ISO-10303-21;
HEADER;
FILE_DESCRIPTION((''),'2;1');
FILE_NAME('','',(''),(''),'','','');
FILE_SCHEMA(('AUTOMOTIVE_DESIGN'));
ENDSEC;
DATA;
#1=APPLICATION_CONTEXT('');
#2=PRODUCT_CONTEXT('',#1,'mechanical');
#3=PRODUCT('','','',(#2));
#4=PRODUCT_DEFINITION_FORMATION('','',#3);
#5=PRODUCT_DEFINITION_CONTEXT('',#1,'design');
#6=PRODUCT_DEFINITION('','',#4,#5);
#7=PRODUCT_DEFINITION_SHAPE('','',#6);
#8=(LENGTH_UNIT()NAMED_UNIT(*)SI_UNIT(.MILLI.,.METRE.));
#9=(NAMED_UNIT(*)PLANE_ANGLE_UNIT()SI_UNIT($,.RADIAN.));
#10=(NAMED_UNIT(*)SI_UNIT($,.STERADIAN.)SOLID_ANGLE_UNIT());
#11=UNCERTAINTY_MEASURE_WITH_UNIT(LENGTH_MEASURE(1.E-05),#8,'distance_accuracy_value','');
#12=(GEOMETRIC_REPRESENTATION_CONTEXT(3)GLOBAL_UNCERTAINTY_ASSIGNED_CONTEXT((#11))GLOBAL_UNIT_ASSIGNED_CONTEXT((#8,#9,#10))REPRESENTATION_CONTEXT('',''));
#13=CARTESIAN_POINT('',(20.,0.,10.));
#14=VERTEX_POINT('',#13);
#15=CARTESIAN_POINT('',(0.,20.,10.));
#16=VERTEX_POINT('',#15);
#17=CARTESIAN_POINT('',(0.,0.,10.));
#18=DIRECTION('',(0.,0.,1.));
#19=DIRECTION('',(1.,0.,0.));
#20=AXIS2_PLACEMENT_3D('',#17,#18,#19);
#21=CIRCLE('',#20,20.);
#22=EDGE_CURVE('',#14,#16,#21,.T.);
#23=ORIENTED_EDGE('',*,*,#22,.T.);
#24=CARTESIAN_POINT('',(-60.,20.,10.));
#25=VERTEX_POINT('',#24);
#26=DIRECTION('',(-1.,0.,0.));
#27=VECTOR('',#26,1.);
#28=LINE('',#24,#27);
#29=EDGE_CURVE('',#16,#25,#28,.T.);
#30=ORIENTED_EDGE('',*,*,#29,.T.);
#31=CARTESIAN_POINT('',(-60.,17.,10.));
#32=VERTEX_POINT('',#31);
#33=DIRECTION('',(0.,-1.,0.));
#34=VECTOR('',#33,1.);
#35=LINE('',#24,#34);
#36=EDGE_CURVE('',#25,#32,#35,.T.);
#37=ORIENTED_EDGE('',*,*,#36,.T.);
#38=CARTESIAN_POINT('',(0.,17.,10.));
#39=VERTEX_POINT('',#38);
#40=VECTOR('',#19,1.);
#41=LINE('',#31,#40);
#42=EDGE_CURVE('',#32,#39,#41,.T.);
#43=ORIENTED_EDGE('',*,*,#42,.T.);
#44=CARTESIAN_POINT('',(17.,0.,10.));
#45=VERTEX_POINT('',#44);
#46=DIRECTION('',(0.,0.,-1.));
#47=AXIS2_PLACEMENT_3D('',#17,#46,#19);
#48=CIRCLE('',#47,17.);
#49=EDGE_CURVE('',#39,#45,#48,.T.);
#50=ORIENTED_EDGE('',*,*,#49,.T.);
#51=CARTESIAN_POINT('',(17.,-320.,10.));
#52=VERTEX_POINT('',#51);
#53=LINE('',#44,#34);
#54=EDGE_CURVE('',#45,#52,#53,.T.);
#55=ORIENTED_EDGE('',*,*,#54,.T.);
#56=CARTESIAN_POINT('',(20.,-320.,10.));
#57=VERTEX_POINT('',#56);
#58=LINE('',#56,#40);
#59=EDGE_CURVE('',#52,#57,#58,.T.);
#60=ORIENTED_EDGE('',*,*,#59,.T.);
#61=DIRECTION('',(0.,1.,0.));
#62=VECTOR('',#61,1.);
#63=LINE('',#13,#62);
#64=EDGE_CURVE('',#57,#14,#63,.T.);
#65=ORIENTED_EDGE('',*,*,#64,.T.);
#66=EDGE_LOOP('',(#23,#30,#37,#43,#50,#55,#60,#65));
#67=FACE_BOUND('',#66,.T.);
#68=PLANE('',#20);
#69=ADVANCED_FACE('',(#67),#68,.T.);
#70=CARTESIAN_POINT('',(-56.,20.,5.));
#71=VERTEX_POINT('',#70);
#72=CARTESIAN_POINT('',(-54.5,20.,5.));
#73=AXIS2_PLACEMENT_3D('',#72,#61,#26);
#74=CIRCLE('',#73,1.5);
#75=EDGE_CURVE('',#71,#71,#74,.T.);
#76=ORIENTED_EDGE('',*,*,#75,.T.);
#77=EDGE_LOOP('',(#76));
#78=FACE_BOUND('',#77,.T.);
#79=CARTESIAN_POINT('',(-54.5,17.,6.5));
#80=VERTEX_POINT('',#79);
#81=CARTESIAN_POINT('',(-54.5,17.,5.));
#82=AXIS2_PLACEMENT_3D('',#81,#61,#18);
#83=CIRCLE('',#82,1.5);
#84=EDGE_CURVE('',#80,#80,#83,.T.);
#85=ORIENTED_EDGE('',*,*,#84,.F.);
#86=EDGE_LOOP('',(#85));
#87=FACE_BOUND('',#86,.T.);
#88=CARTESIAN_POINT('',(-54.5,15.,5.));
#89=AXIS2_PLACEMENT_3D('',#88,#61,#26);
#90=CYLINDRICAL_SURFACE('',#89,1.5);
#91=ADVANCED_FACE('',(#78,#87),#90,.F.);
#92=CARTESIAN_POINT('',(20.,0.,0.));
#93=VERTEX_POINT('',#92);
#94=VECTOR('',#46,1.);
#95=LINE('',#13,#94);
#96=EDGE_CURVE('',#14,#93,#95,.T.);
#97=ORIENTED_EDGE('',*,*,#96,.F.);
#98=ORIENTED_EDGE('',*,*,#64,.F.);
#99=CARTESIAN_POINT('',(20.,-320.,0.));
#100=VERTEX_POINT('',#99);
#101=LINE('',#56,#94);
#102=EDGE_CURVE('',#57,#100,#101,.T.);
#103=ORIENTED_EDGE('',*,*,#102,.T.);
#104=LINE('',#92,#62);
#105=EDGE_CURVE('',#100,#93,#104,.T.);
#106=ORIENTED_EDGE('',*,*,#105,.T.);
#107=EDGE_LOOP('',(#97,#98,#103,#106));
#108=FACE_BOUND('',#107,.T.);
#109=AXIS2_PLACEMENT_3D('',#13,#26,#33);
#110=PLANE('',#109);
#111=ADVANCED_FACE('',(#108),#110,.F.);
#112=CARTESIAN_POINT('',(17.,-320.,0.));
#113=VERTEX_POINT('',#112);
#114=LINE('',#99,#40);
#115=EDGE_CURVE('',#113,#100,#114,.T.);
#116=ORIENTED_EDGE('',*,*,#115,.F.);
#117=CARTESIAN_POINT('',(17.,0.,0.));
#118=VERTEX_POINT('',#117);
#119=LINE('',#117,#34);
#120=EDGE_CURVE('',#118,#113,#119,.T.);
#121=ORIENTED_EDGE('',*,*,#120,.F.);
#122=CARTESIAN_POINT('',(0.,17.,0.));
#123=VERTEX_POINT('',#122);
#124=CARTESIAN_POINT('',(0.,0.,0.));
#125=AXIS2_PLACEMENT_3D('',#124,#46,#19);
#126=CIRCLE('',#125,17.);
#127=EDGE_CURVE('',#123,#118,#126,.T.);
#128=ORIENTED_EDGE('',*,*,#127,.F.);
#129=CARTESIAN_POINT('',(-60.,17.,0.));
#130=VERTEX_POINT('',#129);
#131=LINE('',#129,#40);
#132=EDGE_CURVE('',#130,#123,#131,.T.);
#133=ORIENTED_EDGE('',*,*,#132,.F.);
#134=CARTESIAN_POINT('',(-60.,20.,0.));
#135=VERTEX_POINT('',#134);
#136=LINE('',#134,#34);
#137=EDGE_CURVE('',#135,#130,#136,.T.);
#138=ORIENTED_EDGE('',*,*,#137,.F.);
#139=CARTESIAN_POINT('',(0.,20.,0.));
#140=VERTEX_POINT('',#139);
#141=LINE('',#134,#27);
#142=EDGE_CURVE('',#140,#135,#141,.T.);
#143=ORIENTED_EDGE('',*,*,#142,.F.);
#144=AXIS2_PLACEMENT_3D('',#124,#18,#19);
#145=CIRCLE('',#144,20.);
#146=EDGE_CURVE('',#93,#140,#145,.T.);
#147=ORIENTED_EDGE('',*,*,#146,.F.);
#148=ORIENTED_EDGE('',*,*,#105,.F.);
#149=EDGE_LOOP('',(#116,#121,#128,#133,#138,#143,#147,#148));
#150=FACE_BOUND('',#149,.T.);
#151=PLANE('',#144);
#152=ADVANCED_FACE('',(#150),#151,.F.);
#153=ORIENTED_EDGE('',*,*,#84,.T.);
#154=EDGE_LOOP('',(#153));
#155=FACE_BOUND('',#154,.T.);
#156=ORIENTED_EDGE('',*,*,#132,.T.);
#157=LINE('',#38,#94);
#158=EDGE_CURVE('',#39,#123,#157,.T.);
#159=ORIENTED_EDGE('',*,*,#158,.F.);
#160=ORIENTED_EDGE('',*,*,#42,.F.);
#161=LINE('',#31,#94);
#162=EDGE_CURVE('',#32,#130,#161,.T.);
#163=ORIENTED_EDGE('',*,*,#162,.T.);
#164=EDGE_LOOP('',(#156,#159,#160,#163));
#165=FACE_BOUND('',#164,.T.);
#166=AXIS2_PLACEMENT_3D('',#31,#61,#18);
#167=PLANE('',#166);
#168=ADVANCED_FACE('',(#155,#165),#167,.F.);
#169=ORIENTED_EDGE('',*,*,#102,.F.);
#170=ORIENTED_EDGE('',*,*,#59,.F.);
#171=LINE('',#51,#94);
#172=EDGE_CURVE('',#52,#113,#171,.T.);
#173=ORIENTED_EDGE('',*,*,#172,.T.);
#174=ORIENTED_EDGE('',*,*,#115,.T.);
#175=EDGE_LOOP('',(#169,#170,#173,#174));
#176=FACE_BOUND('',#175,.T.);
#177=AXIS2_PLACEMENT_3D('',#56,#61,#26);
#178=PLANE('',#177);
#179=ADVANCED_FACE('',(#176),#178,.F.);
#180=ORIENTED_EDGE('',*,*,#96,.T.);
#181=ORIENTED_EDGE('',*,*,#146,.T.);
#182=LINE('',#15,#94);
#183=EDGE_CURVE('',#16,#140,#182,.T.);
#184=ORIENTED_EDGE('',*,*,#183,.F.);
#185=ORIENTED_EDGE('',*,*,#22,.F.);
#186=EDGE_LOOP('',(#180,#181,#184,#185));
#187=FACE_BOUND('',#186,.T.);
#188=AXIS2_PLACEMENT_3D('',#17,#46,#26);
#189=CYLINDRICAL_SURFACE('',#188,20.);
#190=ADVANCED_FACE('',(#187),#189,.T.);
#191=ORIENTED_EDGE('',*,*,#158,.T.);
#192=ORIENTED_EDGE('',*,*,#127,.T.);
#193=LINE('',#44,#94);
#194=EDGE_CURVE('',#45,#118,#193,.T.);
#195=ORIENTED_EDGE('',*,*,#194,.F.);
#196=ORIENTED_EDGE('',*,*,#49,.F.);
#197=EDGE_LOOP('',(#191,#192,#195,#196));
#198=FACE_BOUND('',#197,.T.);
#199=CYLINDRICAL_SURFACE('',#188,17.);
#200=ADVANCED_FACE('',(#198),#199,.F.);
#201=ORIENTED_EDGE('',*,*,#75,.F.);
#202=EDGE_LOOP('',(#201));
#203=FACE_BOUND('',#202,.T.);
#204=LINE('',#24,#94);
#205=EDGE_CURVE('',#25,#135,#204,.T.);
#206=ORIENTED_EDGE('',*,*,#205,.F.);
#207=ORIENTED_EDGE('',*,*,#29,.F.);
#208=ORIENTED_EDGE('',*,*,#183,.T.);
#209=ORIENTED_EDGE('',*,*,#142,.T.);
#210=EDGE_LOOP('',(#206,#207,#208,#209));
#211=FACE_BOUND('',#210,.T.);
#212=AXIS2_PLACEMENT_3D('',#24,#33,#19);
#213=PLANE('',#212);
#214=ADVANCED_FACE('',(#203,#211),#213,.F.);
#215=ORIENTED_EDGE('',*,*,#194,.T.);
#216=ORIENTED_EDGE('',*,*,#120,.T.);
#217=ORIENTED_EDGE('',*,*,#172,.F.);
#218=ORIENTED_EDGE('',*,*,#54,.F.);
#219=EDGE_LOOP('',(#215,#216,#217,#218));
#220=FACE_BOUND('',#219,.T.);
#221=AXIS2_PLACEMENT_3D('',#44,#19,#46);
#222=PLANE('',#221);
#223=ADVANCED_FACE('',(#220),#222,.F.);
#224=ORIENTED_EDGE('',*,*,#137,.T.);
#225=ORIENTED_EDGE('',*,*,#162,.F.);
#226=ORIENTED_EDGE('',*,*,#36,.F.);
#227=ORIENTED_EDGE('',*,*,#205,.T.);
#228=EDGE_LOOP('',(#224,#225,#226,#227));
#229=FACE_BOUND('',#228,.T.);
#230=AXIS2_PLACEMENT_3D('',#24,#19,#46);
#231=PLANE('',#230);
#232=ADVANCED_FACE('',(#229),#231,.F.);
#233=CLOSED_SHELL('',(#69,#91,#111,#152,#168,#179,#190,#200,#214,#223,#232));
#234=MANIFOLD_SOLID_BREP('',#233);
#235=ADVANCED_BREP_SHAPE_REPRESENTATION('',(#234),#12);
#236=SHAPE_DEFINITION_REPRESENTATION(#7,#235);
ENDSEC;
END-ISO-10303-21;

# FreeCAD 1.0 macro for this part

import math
import FreeCAD as App
import Part
import Sketcher

doc = App.newDocument("Part")
body = doc.addObject("PartDesign::Body", "Body")

# Sketch on XY plane
sketch1 = body.newObject("Sketcher::SketchObject", "Sketch")
sketch1.AttachmentSupport = (doc.getObject("XY_Plane"), [""])
sketch1.MapMode = "FlatFace"
sketch1.addGeometry([
    Part.LineSegment(App.Vector(20, -320, 0), App.Vector(20, 0, 0)),  # 0
    Part.ArcOfCircle(Part.Circle(App.Vector(0, 0, 0), App.Vector(0, 0, 1), 20), math.radians(0), math.radians(90)),  # 1
    Part.LineSegment(App.Vector(0, 20, 0), App.Vector(-60, 20, 0)),  # 2
    Part.LineSegment(App.Vector(-60, 20, 0), App.Vector(-60, 17, 0)),  # 3
    Part.LineSegment(App.Vector(-60, 17, 0), App.Vector(0, 17, 0)),  # 4
    Part.ArcOfCircle(Part.Circle(App.Vector(0, 0, 0), App.Vector(0, 0, 1), 17), math.radians(0), math.radians(90)),  # 5
    Part.LineSegment(App.Vector(17, 0, 0), App.Vector(17, -320, 0)),  # 6
    Part.LineSegment(App.Vector(17, -320, 0), App.Vector(20, -320, 0)),  # 7
], False)
sketch1.addConstraint([
    Sketcher.Constraint("Tangent", 0, 2, 1, 1),
    Sketcher.Constraint("Tangent", 1, 2, 2, 1),
    Sketcher.Constraint("Coincident", 2, 2, 3, 1),
    Sketcher.Constraint("Coincident", 3, 2, 4, 1),
    Sketcher.Constraint("Tangent", 4, 2, 5, 2),
    Sketcher.Constraint("Tangent", 5, 1, 6, 1),
    Sketcher.Constraint("Coincident", 6, 2, 7, 1),
    Sketcher.Constraint("Coincident", 7, 2, 0, 1),
    Sketcher.Constraint("Vertical", 0),
    Sketcher.Constraint("Horizontal", 2),
    Sketcher.Constraint("Vertical", 3),
    Sketcher.Constraint("Horizontal", 4),
    Sketcher.Constraint("Vertical", 6),
    Sketcher.Constraint("Horizontal", 7),
    Sketcher.Constraint("Coincident", 1, 3, -1, 1),
    Sketcher.Constraint("Coincident", 5, 3, -1, 1),
    Sketcher.Constraint("Radius", 1, 20.0),
    Sketcher.Constraint("Radius", 5, 17.0),
    Sketcher.Constraint("DistanceX", 2, 2, 2, 1, 60.0),
    Sketcher.Constraint("DistanceY", 0, 1, 0, 2, 320.0),
])
pad1 = body.newObject("PartDesign::Pad", "Pad")
pad1.Profile = sketch1
pad1.Length = 10

# Sketch on XZ plane
sketch2 = body.newObject("Sketcher::SketchObject", "Sketch001")
sketch2.AttachmentSupport = (doc.getObject("XZ_Plane"), [""])
sketch2.MapMode = "FlatFace"
sketch2.AttachmentOffset = App.Placement(App.Vector(0, 0, -20), App.Rotation())
sketch2.addGeometry(Part.Circle(App.Vector(-54.5, 5, 0), App.Vector(0, 0, 1), 1.5), False)
sketch2.addConstraint([
    Sketcher.Constraint("Diameter", 0, 3.0),
    Sketcher.Constraint("DistanceY", -1, 1, 0, 3, 5.0),
    Sketcher.Constraint("DistanceX", 0, 3, -1, 1, 54.5),
])
pocket1 = body.newObject("PartDesign::Pocket", "Pocket")
pocket1.Profile = sketch2
pocket1.Length = 5
pocket1.Reversed = True

doc.recompute()
